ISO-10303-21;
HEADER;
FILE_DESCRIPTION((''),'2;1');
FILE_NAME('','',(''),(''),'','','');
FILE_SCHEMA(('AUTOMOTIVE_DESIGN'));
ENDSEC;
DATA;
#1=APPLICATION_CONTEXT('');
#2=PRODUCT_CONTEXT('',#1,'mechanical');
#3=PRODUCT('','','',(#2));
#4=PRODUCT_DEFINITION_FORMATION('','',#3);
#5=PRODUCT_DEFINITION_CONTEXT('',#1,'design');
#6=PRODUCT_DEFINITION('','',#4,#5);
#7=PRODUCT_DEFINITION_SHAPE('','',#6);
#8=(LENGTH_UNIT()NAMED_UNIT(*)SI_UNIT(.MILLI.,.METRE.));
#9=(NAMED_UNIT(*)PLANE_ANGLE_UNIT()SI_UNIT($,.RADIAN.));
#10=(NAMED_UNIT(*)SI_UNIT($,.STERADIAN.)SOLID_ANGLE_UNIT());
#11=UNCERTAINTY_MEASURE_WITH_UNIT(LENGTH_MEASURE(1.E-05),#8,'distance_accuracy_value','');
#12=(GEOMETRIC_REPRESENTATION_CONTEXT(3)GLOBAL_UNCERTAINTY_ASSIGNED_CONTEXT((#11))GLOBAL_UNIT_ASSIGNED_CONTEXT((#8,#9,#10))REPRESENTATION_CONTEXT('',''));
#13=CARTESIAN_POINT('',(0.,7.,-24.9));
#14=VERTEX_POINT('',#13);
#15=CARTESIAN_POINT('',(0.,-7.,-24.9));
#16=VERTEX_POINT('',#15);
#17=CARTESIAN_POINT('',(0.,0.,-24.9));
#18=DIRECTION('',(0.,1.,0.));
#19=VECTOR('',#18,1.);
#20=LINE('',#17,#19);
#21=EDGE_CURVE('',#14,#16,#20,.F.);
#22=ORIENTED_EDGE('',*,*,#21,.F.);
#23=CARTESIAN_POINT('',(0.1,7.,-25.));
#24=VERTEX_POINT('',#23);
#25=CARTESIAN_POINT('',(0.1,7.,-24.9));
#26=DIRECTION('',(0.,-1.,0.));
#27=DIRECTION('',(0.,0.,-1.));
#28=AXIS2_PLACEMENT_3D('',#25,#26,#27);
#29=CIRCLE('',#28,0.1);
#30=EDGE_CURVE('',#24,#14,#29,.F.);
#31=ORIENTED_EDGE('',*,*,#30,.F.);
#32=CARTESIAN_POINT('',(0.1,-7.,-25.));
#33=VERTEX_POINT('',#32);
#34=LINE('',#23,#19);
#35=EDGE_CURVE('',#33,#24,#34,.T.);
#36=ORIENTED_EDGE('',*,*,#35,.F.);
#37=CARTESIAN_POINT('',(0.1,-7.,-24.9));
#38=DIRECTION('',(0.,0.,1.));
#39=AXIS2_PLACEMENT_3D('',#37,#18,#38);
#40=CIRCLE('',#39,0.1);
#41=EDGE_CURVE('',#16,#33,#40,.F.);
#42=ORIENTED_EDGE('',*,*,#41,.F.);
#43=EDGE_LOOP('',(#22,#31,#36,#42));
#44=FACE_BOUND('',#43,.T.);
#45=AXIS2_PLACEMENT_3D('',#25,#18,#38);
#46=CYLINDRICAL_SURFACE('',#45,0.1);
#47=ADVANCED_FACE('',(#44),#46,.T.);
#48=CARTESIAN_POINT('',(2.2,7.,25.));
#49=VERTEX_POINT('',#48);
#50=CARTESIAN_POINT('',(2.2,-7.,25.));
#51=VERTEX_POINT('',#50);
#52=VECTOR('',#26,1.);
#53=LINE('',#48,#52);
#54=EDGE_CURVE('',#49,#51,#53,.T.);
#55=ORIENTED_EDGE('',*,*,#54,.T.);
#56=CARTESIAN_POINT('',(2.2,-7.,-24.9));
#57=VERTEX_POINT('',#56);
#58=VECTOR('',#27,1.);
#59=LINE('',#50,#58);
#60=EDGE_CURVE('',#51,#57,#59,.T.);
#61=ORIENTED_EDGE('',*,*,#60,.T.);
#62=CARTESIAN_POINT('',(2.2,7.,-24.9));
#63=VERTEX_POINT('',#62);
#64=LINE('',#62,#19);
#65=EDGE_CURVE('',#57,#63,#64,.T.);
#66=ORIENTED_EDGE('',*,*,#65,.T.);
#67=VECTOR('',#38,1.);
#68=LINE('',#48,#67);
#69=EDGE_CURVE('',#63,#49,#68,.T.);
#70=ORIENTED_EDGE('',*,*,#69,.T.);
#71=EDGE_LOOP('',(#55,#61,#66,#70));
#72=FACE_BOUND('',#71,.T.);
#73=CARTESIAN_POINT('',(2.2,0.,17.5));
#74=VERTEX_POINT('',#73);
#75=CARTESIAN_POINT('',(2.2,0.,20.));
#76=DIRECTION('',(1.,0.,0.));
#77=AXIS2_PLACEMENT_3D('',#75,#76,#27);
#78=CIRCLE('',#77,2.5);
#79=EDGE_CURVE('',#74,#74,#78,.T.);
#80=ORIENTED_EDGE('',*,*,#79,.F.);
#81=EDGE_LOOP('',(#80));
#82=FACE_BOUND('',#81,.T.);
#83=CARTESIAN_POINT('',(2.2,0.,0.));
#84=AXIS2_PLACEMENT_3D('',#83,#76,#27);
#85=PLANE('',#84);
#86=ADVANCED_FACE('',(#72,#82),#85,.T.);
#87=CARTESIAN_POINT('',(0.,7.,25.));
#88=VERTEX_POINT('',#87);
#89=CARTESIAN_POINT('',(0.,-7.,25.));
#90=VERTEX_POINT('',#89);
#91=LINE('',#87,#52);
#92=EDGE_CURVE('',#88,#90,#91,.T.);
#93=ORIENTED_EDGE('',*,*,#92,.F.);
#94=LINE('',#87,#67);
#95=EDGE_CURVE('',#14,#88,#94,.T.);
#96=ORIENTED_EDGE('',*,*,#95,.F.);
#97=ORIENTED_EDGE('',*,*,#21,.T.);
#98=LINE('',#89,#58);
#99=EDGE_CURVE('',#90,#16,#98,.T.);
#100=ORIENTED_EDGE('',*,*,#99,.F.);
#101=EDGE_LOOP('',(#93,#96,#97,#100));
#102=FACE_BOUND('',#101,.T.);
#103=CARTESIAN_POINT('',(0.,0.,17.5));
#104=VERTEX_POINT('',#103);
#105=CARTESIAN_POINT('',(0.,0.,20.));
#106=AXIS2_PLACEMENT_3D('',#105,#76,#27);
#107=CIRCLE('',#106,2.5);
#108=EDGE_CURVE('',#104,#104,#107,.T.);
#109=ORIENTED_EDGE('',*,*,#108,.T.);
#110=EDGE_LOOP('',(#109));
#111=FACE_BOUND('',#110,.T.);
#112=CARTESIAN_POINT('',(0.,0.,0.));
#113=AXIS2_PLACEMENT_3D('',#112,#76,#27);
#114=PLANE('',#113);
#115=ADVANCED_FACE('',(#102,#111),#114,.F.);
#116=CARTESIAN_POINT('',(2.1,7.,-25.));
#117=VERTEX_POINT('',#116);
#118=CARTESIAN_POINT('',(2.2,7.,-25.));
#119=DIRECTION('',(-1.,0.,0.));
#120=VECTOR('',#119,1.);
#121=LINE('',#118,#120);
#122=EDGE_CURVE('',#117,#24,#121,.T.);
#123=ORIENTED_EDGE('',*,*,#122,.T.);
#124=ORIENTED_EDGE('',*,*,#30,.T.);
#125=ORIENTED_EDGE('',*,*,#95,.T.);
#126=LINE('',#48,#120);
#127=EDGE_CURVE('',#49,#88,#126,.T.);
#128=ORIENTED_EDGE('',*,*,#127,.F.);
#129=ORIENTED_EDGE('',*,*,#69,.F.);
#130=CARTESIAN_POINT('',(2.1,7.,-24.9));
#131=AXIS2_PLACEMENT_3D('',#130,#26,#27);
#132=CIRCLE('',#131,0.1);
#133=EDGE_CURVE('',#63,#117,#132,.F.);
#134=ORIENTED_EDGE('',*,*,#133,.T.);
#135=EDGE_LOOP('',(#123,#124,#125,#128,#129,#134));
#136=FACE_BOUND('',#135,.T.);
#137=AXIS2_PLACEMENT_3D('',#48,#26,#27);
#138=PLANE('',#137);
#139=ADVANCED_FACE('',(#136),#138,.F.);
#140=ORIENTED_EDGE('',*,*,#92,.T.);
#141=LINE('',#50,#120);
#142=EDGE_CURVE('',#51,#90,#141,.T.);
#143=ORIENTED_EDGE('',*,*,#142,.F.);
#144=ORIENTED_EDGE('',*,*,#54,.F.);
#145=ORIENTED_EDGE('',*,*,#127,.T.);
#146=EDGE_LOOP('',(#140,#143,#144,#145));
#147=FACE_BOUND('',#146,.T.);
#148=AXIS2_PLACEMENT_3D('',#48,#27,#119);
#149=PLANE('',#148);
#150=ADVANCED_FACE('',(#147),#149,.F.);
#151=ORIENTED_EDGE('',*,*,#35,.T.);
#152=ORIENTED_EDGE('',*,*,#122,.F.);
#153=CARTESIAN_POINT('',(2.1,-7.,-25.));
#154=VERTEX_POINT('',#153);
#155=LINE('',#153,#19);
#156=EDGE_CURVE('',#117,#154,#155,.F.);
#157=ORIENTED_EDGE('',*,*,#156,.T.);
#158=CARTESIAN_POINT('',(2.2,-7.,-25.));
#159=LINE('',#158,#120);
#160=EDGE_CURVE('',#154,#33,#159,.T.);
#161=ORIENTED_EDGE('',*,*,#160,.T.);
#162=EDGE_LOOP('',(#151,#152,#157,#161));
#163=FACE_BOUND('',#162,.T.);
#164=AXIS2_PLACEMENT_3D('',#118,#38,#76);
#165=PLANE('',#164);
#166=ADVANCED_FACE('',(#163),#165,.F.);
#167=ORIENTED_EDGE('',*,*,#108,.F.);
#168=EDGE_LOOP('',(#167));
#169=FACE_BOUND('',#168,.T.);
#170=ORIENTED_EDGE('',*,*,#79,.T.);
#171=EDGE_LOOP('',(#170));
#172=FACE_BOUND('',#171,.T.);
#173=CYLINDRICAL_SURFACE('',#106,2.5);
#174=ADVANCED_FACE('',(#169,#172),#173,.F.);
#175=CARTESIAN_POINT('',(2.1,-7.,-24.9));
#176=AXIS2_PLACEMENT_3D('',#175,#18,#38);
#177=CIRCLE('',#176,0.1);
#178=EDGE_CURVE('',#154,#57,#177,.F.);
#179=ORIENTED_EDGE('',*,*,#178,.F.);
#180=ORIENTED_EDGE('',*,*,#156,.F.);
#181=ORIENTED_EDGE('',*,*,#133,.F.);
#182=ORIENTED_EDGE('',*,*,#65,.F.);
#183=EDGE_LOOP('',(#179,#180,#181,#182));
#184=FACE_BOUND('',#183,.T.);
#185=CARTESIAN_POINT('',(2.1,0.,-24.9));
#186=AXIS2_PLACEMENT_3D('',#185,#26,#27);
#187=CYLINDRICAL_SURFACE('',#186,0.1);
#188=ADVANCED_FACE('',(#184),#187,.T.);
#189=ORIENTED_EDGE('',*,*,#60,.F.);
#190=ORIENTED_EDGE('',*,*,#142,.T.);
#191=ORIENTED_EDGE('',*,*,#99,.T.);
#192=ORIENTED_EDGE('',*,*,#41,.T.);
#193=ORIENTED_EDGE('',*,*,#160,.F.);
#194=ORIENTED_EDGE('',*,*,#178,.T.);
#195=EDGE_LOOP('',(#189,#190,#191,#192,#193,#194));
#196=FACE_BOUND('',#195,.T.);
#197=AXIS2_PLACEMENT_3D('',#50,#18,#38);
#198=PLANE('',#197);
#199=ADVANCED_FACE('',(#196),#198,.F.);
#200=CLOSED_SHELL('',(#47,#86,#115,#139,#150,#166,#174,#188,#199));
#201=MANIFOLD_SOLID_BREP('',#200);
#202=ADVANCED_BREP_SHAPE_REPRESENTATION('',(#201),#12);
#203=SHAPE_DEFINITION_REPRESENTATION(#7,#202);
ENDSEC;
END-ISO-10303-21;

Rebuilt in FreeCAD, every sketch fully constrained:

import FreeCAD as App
import Part
import Sketcher


def edges_at(feature, points):
    """Names of the edges that pass closest to the given points."""
    edges = feature.Shape.Edges
    near = lambda p: min(range(len(edges)), key=lambda i: edges[i].distToShape(Part.Vertex(*p))[0])
    return sorted({f"Edge{near(p) + 1}" for p in points})


def add_polygon(sketch, points):
    """Adds a closed chain of lines whose ends are joined by coincident constraints."""
    first, n = sketch.GeometryCount, len(points)
    for a, b in zip(points, points[1:] + points[:1]):
        sketch.addGeometry(Part.LineSegment(App.Vector(*a, 0), App.Vector(*b, 0)), False)
    for i in range(n):
        sketch.addConstraint(Sketcher.Constraint("Coincident", first + i, 2, first + (i + 1) % n, 1))

doc = App.newDocument("Part")
body = doc.addObject("PartDesign::Body", "Body")

# Sketch on YZ plane
sketch1 = body.newObject("Sketcher::SketchObject", "Sketch")
sketch1.AttachmentSupport = (doc.getObject("YZ_Plane"), [""])
sketch1.MapMode = "FlatFace"
add_polygon(sketch1, [(7, 25), (-7, 25), (-7, -25), (7, -25)])  # lines 0-3
sketch1.addConstraint([
    Sketcher.Constraint("Horizontal", 0),
    Sketcher.Constraint("Vertical", 1),
    Sketcher.Constraint("Horizontal", 2),
    Sketcher.Constraint("Vertical", 3),
    Sketcher.Constraint("Symmetric", 0, 2, 2, 2, -1, 1),
    Sketcher.Constraint("DistanceX", 0, 2, 0, 1, 14.0),
    Sketcher.Constraint("DistanceY", 1, 2, 1, 1, 50.0),
])
pad1 = body.newObject("PartDesign::Pad", "Pad")
pad1.Profile = sketch1
pad1.Length = 2.2

# Sketch on YZ plane
sketch2 = body.newObject("Sketcher::SketchObject", "Sketch001")
sketch2.AttachmentSupport = (doc.getObject("YZ_Plane"), [""])
sketch2.MapMode = "FlatFace"
sketch2.AttachmentOffset = App.Placement(App.Vector(0, 0, 2.2), App.Rotation())
sketch2.addGeometry(Part.Circle(App.Vector(0, 20, 0), App.Vector(0, 0, 1), 2.5), False)
sketch2.addConstraint([
    Sketcher.Constraint("PointOnObject", 0, 3, -2),
    Sketcher.Constraint("Diameter", 0, 5.0),
    Sketcher.Constraint("DistanceY", -1, 1, 0, 3, 20.0),
])
pocket1 = body.newObject("PartDesign::Pocket", "Pocket")
pocket1.Profile = sketch2
pocket1.Type = "ThroughAll"
doc.recompute()

fillet = body.newObject("PartDesign::Fillet", "Fillet")
fillet.Base = (pocket1, edges_at(pocket1, [(2.2, 0, -25)]))
fillet.Radius = 0.1
doc.recompute()

fillet2 = body.newObject("PartDesign::Fillet", "Fillet001")
fillet2.Base = (fillet, edges_at(fillet, [(0, 0, -25)]))
fillet2.Radius = 0.1

doc.recompute()
